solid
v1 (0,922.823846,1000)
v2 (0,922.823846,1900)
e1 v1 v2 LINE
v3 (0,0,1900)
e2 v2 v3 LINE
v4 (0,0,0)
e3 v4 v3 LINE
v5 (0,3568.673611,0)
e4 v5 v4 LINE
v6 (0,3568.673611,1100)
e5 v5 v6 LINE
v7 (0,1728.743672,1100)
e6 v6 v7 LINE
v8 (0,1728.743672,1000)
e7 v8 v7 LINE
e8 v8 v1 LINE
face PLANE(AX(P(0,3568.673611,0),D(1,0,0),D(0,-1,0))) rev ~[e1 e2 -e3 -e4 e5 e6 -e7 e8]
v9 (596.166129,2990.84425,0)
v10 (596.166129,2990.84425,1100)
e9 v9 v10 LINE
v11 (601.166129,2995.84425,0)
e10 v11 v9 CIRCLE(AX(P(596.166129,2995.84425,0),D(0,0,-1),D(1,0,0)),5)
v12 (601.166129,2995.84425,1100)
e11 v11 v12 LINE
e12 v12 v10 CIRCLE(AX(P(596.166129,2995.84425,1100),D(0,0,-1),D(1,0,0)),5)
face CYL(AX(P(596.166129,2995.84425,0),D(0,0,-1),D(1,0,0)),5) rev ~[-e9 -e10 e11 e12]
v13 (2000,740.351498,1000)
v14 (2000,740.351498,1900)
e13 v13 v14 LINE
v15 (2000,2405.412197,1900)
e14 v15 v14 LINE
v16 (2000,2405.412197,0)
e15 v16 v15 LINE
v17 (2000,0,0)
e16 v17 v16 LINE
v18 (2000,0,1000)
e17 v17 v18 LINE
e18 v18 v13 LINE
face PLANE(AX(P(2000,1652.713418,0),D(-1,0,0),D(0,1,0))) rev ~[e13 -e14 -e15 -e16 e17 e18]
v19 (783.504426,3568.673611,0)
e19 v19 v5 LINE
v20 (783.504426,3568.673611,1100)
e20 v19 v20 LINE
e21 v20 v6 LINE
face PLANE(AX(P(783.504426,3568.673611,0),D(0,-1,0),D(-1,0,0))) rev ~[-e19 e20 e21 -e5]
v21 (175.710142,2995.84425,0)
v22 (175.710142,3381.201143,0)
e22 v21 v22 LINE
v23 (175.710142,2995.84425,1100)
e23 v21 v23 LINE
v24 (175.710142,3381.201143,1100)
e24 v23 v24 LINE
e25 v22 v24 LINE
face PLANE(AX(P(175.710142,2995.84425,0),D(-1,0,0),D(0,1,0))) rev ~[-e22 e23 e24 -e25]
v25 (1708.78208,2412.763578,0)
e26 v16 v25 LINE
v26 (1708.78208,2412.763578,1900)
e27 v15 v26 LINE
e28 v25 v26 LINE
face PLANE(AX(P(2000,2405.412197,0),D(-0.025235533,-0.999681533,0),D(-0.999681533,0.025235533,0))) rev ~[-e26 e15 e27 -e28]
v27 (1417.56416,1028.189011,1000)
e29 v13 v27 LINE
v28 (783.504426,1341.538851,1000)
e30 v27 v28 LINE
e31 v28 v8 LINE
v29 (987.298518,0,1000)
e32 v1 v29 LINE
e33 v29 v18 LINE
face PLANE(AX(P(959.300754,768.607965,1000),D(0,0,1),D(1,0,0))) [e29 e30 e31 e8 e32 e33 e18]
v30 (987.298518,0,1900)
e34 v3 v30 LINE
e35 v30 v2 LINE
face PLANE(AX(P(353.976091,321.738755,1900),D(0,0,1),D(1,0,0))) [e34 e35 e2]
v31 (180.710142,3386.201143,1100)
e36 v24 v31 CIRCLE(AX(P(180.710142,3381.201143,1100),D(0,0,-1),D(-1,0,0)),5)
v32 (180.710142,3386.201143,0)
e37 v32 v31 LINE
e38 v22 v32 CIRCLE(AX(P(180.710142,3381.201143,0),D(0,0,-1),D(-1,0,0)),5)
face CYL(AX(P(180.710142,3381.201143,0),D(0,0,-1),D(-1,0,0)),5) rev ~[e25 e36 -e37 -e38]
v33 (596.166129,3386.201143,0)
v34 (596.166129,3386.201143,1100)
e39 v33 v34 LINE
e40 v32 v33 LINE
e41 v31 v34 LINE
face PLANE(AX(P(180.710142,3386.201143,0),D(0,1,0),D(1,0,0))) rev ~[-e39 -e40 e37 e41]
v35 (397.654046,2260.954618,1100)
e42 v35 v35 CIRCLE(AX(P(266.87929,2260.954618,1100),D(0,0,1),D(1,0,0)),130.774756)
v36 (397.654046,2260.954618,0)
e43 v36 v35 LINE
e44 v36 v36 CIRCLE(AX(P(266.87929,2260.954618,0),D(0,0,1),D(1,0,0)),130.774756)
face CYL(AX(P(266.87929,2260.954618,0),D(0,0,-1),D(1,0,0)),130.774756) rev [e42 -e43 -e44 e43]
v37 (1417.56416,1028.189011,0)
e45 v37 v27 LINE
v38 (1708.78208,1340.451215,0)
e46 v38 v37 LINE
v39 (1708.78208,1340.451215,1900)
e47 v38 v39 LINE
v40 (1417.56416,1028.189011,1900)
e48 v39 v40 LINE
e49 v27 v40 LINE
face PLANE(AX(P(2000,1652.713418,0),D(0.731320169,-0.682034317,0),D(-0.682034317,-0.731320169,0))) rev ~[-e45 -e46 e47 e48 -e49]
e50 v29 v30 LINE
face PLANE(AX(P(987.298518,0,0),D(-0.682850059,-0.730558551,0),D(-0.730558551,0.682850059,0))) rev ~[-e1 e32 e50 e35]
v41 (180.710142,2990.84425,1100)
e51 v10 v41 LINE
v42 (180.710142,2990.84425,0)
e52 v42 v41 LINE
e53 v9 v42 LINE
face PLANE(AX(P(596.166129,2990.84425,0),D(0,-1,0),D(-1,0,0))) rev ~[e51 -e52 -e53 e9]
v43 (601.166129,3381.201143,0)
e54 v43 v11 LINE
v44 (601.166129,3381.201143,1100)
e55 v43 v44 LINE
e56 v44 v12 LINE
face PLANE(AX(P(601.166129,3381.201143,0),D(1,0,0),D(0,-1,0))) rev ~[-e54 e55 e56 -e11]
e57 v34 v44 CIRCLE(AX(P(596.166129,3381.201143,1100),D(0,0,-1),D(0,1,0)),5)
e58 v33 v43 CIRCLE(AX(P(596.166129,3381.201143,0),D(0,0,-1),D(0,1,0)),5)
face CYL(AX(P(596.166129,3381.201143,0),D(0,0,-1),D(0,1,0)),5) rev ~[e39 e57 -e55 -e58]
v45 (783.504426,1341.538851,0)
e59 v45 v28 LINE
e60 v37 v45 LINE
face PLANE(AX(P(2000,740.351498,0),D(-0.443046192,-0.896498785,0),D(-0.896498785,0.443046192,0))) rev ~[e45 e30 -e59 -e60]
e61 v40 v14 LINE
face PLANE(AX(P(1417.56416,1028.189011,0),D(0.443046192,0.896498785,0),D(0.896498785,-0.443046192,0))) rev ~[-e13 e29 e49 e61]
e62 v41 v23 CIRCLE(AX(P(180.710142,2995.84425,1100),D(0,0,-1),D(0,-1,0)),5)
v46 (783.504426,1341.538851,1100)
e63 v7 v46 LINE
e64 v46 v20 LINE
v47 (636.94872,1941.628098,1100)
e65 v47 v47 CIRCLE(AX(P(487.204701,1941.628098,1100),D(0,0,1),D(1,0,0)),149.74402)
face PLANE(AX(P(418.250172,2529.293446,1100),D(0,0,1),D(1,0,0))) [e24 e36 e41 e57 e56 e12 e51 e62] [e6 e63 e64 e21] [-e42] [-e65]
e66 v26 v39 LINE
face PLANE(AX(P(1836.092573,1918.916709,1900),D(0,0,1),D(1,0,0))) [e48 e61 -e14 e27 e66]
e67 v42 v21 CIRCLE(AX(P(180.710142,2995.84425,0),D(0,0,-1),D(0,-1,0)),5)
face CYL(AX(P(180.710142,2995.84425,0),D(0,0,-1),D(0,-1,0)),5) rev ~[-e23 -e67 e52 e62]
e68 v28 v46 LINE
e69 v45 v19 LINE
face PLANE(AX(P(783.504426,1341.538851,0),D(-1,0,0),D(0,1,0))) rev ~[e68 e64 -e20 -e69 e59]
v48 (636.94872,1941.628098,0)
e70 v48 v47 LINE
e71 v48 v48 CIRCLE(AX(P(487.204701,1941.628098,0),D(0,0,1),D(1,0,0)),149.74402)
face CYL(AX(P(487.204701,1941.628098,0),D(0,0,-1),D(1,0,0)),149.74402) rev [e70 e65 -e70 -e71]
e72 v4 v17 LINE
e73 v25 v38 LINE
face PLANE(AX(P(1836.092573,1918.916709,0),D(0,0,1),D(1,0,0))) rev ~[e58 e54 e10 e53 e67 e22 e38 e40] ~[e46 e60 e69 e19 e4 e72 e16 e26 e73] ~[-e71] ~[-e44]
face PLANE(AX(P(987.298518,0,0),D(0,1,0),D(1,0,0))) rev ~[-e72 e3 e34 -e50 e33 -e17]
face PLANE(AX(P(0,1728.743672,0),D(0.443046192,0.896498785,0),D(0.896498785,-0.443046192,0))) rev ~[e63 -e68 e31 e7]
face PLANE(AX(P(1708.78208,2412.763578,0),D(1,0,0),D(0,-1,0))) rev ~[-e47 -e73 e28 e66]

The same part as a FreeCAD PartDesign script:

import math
import FreeCAD as App
import Part
import Sketcher
from FreeCAD import Vector
Q = App.Units.Quantity


def add_polygon(sketch, points):
    """Adds a closed chain of lines whose ends are joined by coincident constraints."""
    first, n = sketch.GeometryCount, len(points)
    for a, b in zip(points, points[1:] + points[:1]):
        sketch.addGeometry(Part.LineSegment(App.Vector(*a, 0), App.Vector(*b, 0)), False)
    for i in range(n):
        sketch.addConstraint(Sketcher.Constraint("Coincident", first + i, 2, first + (i + 1) % n, 1))

doc = App.newDocument("Part")
body = doc.addObject("PartDesign::Body", "Body")

sketch1 = doc.addObject("Sketcher::SketchObject", "Sketch")
body.addObject(sketch1)
sketch1.AttachmentSupport = (doc.XY_Plane, [""])
sketch1.MapMode = "FlatFace"
add_polygon(sketch1, [(0, 0), (987, 0), (0, 923)])
sketch1.addConstraint([
    Sketcher.Constraint("Horizontal", 0),
    Sketcher.Constraint("Vertical", 2),
    Sketcher.Constraint("Coincident", 2, 2, -1, 1),
    Sketcher.Constraint("DistanceX", 0, 1, 0, 2, Q("987.298518 mm")),
    Sketcher.Constraint("DistanceY", 2, 2, 2, 1, Q("922.823846 mm")),
])
pad1 = doc.addObject("PartDesign::Pad", "Pad")
body.addObject(pad1)
pad1.Profile = sketch1
pad1.Length = 1900

sketch2 = doc.addObject("Sketcher::SketchObject", "Sketch001")
body.addObject(sketch2)
sketch2.AttachmentSupport = (doc.XY_Plane, [""])
sketch2.MapMode = "FlatFace"
add_polygon(sketch2, [(987, 0), (2000, 0), (2000, 740), (0, 1729), (0, 923)])
sketch2.addConstraint([
    Sketcher.Constraint("Horizontal", 0),
    Sketcher.Constraint("Vertical", 1),
    Sketcher.Constraint("Vertical", 3),
    Sketcher.Constraint("PointOnObject", 0, 2, -1),
    Sketcher.Constraint("PointOnObject", 2, 2, -2),
    Sketcher.Constraint("DistanceX", -1, 1, 0, 2, Q("2000 mm")),
    Sketcher.Constraint("DistanceY", 1, 1, 1, 2, Q("740.351498 mm")),
    Sketcher.Constraint("DistanceX", 0, 1, 0, 2, Q("1012.701482 mm")),
    Sketcher.Constraint("Distance", 2, Q("2230.900959 mm")),
    Sketcher.Constraint("DistanceY", 3, 2, 3, 1, Q("805.919826 mm")),
])
pad2 = doc.addObject("PartDesign::Pad", "Pad001")
body.addObject(pad2)
pad2.Profile = sketch2
pad2.Length = 1000

sketch3 = doc.addObject("Sketcher::SketchObject", "Sketch002")
body.addObject(sketch3)
sketch3.AttachmentSupport = (doc.XY_Plane, [""])
sketch3.MapMode = "FlatFace"
add_polygon(sketch3, [(0, 1729), (784, 1342), (784, 3569), (0, 3569)])
sketch3.addGeometry(Part.Circle(Vector(267, 2261, 0), Vector(0, 0, 1), 131), False)
sketch3.addGeometry(Part.Circle(Vector(487, 1942, 0), Vector(0, 0, 1), 150), False)
sketch3.addGeometry(Part.LineSegment(Vector(176, 2996, 0), Vector(176, 3381, 0)), False)
sketch3.addGeometry(Part.ArcOfCircle(Part.Circle(Vector(181, 3381, 0), Vector(0, 0, 1), 5), math.radians(90), math.radians(180)), False)
sketch3.addGeometry(Part.LineSegment(Vector(181, 3386, 0), Vector(596, 3386, 0)), False)
sketch3.addGeometry(Part.ArcOfCircle(Part.Circle(Vector(596, 3381, 0), Vector(0, 0, 1), 5), math.radians(0), math.radians(90)), False)
sketch3.addGeometry(Part.LineSegment(Vector(601, 3381, 0), Vector(601, 2996, 0)), False)
sketch3.addGeometry(Part.ArcOfCircle(Part.Circle(Vector(596, 2996, 0), Vector(0, 0, 1), 5), math.radians(-90), math.radians(0)), False)
sketch3.addGeometry(Part.LineSegment(Vector(596, 2991, 0), Vector(181, 2991, 0)), False)
sketch3.addGeometry(Part.ArcOfCircle(Part.Circle(Vector(181, 2996, 0), Vector(0, 0, 1), 5), math.radians(180), math.radians(270)), False)
sketch3.addConstraint([
    Sketcher.Constraint("Tangent", 6, 2, 7, 2),
    Sketcher.Constraint("Tangent", 7, 1, 8, 1),
    Sketcher.Constraint("Tangent", 8, 2, 9, 2),
    Sketcher.Constraint("Tangent", 9, 1, 10, 1),
    Sketcher.Constraint("Tangent", 10, 2, 11, 2),
    Sketcher.Constraint("Tangent", 11, 1, 12, 1),
    Sketcher.Constraint("Tangent", 12, 2, 13, 2),
    Sketcher.Constraint("Tangent", 13, 1, 6, 1),
    Sketcher.Constraint("Vertical", 1),
    Sketcher.Constraint("Horizontal", 2),
    Sketcher.Constraint("Vertical", 3),
    Sketcher.Constraint("Vertical", 6),
    Sketcher.Constraint("Horizontal", 8),
    Sketcher.Constraint("Vertical", 10),
    Sketcher.Constraint("Horizontal", 12),
    Sketcher.Constraint("Equal", 7, 9),
    Sketcher.Constraint("Equal", 9, 11),
    Sketcher.Constraint("Equal", 11, 13),
    Sketcher.Constraint("PointOnObject", 2, 2, -2),
    Sketcher.Constraint("Radius", 7, Q("5 mm")),
    Sketcher.Constraint("Diameter", 4, Q("261.549512 mm")),
    Sketcher.Constraint("Diameter", 5, Q("299.488039 mm")),
    Sketcher.Constraint("DistanceY", 1, 1, 1, 2, Q("2227.13476 mm")),
    Sketcher.Constraint("DistanceY", 3, 2, 3, 1, Q("1839.929938 mm")),
    Sketcher.Constraint("DistanceX", -1, 1, 5, 3, Q("487.204701 mm")),
    Sketcher.Constraint("DistanceY", -1, 1, 5, 3, Q("1941.628098 mm")),
    Sketcher.Constraint("DistanceY", 0, 2, 11, 3, Q("1654.305399 mm")),
    Sketcher.Constraint("Distance", 0, Q("873.960388 mm")),
    Sketcher.Constraint("DistanceX", 8, 1, 8, 2, Q("415.455987 mm")),
    Sketcher.Constraint("DistanceY", 6, 1, 6, 2, Q("385.356894 mm")),
    Sketcher.Constraint("DistanceX", -1, 1, 4, 3, Q("266.87929 mm")),
    Sketcher.Constraint("DistanceY", -1, 1, 4, 3, Q("2260.954618 mm")),
    Sketcher.Constraint("DistanceX", -1, 1, 7, 3, Q("180.710142 mm")),
    Sketcher.Constraint("DistanceY", -1, 1, 11, 3, Q("2995.84425 mm")),
])
pad3 = doc.addObject("PartDesign::Pad", "Pad002")
body.addObject(pad3)
pad3.Profile = sketch3
pad3.Length = 1100

sketch4 = doc.addObject("Sketcher::SketchObject", "Sketch003")
body.addObject(sketch4)
sketch4.AttachmentSupport = (doc.XY_Plane, [""])
sketch4.MapMode = "FlatFace"
add_polygon(sketch4, [(1418, 1028), (2000, 740), (2000, 1653)])
sketch4.addConstraint([
    Sketcher.Constraint("Vertical", 1),
    Sketcher.Constraint("DistanceX", -1, 1, 0, 2, Q("2000 mm")),
    Sketcher.Constraint("DistanceY", 1, 1, 1, 2, Q("912.36192 mm")),
    Sketcher.Constraint("DistanceY", -1, 1, 0, 2, Q("740.351498 mm")),
    Sketcher.Constraint("DistanceX", -1, 1, 2, 2, Q("1417.56416 mm")),
    Sketcher.Constraint("DistanceY", -1, 1, 2, 2, Q("1028.189011 mm")),
])
pad4 = doc.addObject("PartDesign::Pad", "Pad003")
body.addObject(pad4)
pad4.Profile = sketch4
pad4.Length = 1900

sketch5 = doc.addObject("Sketcher::SketchObject", "Sketch004")
body.addObject(sketch5)
sketch5.AttachmentSupport = (doc.XY_Plane, [""])
sketch5.MapMode = "FlatFace"
add_polygon(sketch5, [(1709, 1340), (2000, 1653), (2000, 2405), (1709, 2413)])
sketch5.addConstraint([
    Sketcher.Constraint("Vertical", 1),
    Sketcher.Constraint("Vertical", 3),
    Sketcher.Constraint("DistanceX", -1, 1, 0, 2, Q("2000 mm")),
    Sketcher.Constraint("DistanceY", 1, 1, 1, 2, Q("752.698779 mm")),
    Sketcher.Constraint("DistanceY", 3, 2, 3, 1, Q("1072.312363 mm")),
    Sketcher.Constraint("DistanceY", -1, 1, 0, 2, Q("1652.713418 mm")),
    Sketcher.Constraint("DistanceX", -1, 1, 2, 2, Q("1708.78208 mm")),
    Sketcher.Constraint("DistanceY", 1, 2, 2, 2, Q("7.351381 mm")),
])
pad5 = doc.addObject("PartDesign::Pad", "Pad004")
body.addObject(pad5)
pad5.Profile = sketch5
pad5.Length = 1900

doc.recompute()
